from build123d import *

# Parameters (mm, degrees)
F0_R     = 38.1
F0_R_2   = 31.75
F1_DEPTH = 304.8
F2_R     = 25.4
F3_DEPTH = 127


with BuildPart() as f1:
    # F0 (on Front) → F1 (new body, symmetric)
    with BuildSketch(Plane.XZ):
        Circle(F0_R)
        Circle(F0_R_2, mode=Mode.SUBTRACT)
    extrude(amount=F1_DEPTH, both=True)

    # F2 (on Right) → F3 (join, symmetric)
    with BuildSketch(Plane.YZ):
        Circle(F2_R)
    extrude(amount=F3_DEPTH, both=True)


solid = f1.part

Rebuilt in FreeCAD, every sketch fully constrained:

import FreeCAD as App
import Part
import Sketcher

V = App.Vector
Q = App.Units.Quantity

doc = App.newDocument("Part")
body = doc.addObject("PartDesign::Body", "Body")

sketch1 = body.newObject("Sketcher::SketchObject", "Sketch")
sketch1.AttachmentSupport = (doc.getObject("XZ_Plane"), [""])
sketch1.MapMode = "FlatFace"
sketch1.addGeometry([
    Part.Circle(V(0, 0, 0), V(0, 0, 1), 38.1),
    Part.Circle(V(0, 0, 0), V(0, 0, 1), 31.75),
], False)
sketch1.addConstraint([
    Sketcher.Constraint("Coincident", 0, 3, -1, 1),
    Sketcher.Constraint("Coincident", 1, 3, -1, 1),
    Sketcher.Constraint("Diameter", 0, Q("3 in")),
    Sketcher.Constraint("Diameter", 1, Q("2.5 in")),
])
pad1 = body.newObject("PartDesign::Pad", "Pad")
pad1.Profile = sketch1
pad1.Length = Q("24 in")
pad1.Midplane = True

sketch2 = body.newObject("Sketcher::SketchObject", "Sketch001")
sketch2.AttachmentSupport = (doc.getObject("YZ_Plane"), [""])
sketch2.MapMode = "FlatFace"
sketch2.addGeometry(Part.Circle(V(0, 0, 0), V(0, 0, 1), 25.4), False)
sketch2.addConstraint([
    Sketcher.Constraint("Coincident", 0, 3, -1, 1),
    Sketcher.Constraint("Diameter", 0, Q("2 in")),
])
pad2 = body.newObject("PartDesign::Pad", "Pad001")
pad2.Profile = sketch2
pad2.Length = Q("10 in")
pad2.Midplane = True

doc.recompute()
